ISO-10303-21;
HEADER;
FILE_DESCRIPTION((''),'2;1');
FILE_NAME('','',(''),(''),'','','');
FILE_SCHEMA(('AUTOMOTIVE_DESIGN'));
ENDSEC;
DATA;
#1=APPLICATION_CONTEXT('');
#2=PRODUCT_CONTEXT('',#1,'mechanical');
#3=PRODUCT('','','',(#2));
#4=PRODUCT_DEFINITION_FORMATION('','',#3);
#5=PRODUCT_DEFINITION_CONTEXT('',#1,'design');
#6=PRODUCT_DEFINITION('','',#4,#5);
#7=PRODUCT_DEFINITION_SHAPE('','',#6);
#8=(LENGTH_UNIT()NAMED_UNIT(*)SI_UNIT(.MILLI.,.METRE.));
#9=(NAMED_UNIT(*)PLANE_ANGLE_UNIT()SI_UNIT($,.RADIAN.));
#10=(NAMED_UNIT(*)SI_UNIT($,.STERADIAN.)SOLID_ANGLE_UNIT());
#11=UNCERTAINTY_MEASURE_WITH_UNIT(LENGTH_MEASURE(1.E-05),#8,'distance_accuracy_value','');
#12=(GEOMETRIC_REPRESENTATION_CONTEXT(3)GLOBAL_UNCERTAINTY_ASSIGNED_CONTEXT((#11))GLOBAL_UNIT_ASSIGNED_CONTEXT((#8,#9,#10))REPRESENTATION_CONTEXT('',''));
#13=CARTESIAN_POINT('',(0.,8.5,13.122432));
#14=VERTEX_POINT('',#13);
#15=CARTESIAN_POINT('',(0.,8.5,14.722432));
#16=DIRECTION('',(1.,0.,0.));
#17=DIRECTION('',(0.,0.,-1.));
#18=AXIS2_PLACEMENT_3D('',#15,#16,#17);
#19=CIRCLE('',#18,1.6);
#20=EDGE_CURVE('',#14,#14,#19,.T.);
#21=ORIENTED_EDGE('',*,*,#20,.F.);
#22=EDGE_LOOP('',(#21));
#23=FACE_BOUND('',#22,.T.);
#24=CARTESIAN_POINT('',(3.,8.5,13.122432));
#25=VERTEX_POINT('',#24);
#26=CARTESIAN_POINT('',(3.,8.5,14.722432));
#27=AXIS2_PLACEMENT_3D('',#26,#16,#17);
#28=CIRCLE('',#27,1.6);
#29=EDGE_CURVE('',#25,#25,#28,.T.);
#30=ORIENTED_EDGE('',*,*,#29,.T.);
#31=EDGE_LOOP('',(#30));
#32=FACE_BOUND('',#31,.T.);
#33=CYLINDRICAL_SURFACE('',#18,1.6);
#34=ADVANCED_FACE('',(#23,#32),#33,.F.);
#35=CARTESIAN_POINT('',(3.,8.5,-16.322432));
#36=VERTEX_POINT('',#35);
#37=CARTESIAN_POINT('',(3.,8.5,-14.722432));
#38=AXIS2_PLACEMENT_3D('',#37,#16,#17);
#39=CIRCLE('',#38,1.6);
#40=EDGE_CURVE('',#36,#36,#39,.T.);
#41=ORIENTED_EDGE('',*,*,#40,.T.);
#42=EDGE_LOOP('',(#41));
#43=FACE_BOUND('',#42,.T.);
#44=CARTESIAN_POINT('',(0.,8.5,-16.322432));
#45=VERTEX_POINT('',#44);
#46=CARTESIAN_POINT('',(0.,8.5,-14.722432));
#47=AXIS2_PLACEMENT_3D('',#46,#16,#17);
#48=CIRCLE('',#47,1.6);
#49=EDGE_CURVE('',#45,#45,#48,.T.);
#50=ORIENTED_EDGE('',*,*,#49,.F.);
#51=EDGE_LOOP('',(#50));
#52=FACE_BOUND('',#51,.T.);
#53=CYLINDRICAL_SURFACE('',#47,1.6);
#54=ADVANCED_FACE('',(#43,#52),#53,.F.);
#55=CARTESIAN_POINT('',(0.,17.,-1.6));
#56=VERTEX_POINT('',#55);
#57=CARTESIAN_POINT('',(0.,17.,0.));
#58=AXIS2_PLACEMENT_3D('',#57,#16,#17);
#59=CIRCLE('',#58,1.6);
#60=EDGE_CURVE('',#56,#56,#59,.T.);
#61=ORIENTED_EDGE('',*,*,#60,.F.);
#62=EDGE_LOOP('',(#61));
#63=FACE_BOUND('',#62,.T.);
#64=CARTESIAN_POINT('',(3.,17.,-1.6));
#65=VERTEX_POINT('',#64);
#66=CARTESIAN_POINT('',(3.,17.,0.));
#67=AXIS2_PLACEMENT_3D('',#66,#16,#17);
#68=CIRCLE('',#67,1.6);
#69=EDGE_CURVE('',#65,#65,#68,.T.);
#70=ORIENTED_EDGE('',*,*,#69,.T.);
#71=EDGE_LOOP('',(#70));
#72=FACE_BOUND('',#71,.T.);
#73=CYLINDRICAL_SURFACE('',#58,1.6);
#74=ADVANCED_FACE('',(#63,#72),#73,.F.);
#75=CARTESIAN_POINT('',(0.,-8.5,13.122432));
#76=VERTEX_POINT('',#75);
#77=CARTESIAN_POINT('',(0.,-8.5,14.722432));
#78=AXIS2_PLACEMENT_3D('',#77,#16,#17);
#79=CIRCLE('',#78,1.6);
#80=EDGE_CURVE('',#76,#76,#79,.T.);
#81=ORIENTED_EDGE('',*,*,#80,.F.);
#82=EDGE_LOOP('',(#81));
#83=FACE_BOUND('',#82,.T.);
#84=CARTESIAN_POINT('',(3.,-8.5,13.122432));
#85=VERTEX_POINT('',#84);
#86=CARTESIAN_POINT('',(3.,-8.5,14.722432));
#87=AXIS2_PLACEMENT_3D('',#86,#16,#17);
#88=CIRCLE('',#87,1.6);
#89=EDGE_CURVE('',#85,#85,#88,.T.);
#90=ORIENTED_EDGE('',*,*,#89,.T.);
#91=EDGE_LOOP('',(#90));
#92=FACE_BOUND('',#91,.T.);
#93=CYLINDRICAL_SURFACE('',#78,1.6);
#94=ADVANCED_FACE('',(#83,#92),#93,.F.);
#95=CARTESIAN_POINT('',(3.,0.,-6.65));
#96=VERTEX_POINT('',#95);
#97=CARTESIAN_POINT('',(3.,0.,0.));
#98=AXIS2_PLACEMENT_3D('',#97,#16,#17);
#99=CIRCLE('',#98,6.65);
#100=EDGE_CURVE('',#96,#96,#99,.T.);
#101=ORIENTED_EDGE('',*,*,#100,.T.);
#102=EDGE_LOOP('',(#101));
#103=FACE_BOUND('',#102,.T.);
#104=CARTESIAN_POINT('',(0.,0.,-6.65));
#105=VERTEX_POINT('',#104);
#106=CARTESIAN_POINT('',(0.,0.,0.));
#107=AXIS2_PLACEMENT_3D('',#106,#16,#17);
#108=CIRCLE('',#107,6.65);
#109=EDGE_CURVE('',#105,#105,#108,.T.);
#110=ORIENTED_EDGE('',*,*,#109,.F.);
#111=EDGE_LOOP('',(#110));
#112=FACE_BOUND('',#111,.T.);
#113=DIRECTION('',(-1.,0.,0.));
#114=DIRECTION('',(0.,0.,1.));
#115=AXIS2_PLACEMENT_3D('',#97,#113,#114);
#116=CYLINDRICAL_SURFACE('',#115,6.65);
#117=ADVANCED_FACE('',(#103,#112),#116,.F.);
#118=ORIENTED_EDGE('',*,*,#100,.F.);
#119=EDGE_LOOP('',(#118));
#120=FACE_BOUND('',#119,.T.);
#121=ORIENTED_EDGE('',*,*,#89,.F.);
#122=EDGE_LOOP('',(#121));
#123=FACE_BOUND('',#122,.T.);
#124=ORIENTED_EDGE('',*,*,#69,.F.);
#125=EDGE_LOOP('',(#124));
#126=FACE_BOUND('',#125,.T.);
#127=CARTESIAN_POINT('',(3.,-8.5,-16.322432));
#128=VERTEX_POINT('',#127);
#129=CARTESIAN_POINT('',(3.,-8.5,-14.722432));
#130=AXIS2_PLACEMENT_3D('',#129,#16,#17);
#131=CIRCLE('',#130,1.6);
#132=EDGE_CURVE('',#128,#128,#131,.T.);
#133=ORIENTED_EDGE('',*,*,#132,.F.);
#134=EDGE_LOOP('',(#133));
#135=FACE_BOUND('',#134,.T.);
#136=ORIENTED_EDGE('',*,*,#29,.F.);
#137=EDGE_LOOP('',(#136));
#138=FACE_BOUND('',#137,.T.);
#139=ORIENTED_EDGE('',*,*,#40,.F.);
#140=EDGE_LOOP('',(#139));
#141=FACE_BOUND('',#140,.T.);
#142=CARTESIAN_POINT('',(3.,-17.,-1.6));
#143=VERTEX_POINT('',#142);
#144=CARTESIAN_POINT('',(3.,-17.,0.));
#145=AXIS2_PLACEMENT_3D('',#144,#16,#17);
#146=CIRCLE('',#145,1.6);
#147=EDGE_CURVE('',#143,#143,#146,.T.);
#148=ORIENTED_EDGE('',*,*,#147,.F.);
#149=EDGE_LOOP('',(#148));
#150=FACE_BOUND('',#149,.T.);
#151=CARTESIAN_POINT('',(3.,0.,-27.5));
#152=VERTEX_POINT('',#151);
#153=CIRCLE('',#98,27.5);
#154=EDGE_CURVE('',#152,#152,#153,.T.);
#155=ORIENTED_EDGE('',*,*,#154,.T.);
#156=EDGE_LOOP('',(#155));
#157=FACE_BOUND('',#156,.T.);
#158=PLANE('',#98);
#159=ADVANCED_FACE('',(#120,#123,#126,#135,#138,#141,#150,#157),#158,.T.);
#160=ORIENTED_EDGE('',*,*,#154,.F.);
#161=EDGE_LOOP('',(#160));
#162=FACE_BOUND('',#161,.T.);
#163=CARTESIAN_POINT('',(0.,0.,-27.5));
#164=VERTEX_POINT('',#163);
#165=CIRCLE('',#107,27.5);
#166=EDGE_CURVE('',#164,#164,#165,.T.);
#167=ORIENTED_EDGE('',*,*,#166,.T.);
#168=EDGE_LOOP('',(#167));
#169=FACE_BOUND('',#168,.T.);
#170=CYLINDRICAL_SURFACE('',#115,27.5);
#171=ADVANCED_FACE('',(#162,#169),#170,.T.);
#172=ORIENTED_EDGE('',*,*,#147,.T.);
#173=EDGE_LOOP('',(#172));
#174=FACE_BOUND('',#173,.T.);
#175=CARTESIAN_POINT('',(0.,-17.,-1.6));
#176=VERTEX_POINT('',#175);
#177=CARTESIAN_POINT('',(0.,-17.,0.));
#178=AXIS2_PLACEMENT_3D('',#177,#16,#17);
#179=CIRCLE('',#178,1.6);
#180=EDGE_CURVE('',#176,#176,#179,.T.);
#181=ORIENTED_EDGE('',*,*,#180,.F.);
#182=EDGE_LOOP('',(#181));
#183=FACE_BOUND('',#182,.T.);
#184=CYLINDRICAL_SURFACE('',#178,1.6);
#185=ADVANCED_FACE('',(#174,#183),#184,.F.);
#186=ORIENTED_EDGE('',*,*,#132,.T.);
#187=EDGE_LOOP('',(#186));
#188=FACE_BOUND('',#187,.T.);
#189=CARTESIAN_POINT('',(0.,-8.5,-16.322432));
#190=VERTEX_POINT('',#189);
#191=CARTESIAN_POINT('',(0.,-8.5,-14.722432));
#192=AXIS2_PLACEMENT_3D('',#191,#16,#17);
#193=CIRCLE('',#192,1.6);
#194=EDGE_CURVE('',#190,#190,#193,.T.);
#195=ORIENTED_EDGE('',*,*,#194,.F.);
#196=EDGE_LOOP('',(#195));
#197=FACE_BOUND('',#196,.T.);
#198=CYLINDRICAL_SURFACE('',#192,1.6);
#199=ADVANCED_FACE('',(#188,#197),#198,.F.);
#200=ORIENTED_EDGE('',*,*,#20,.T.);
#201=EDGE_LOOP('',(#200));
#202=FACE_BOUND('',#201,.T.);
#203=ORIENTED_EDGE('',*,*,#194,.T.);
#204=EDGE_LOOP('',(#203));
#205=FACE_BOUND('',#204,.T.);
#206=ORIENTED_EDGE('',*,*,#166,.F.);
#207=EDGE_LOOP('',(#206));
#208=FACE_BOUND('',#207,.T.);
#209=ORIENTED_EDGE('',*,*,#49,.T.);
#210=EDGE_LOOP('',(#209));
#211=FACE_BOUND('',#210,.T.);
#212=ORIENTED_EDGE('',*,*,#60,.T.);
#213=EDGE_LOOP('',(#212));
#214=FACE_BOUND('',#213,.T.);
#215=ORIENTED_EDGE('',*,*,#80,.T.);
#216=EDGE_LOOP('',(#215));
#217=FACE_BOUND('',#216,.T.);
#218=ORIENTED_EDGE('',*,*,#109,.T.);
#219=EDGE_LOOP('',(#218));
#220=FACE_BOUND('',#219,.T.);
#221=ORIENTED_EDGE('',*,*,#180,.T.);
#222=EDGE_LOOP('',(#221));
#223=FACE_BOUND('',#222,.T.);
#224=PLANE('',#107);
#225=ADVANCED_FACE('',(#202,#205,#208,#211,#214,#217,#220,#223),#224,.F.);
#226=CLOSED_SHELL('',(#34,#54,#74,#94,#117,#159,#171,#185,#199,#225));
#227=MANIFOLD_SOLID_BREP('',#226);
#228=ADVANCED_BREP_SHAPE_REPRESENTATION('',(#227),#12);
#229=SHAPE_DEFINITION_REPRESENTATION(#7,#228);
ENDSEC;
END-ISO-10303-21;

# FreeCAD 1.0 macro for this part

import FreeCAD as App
import Part
import Sketcher
from FreeCAD import Vector
Q = App.Units.Quantity

doc = App.newDocument("Part")
body = doc.addObject("PartDesign::Body", "Body")

# Sketch on YZ plane
sketch1 = body.newObject("Sketcher::SketchObject", "Sketch")
sketch1.AttachmentSupport = (doc.getObject("YZ_Plane"), [""])
sketch1.MapMode = "FlatFace"
sketch1.addGeometry(Part.Circle(Vector(0, 0, 0), Vector(0, 0, 1), 28), False)
sketch1.addGeometry(Part.Circle(Vector(0, 0, 0), Vector(0, 0, 1), 7), False)
sketch1.addConstraint(Sketcher.Constraint("Coincident", 0, 3, -1, 1))
sketch1.addConstraint(Sketcher.Constraint("Coincident", 1, 3, -1, 1))
sketch1.addConstraint(Sketcher.Constraint("Diameter", 0, Q("55 mm")))
sketch1.addConstraint(Sketcher.Constraint("Diameter", 1, Q("13.3 mm")))
pad1 = body.newObject("PartDesign::Pad", "Pad")
pad1.Profile = sketch1
pad1.Length = 3

# Sketch on YZ plane
sketch2 = body.newObject("Sketcher::SketchObject", "Sketch001")
sketch2.AttachmentSupport = (doc.getObject("YZ_Plane"), [""])
sketch2.MapMode = "FlatFace"
sketch2.AttachmentOffset = App.Placement(Vector(0, 0, 3), App.Rotation())
sketch2.addGeometry(Part.Circle(Vector(17, 0, 0), Vector(0, 0, 1), 1.6), False)
sketch2.addGeometry(Part.Circle(Vector(8.5, -14.7, 0), Vector(0, 0, 1), 1.6), False)
sketch2.addGeometry(Part.Circle(Vector(-8.5, -14.7, 0), Vector(0, 0, 1), 1.6), False)
sketch2.addGeometry(Part.Circle(Vector(-17, 0, 0), Vector(0, 0, 1), 1.6), False)
sketch2.addGeometry(Part.Circle(Vector(-8.5, 14.7, 0), Vector(0, 0, 1), 1.6), False)
sketch2.addGeometry(Part.Circle(Vector(8.5, 14.7, 0), Vector(0, 0, 1), 1.6), False)
sketch2.addConstraint(Sketcher.Constraint("Equal", 0, 1))
sketch2.addConstraint(Sketcher.Constraint("Equal", 1, 2))
sketch2.addConstraint(Sketcher.Constraint("Equal", 2, 3))
sketch2.addConstraint(Sketcher.Constraint("Equal", 3, 4))
sketch2.addConstraint(Sketcher.Constraint("Equal", 4, 5))
sketch2.addConstraint(Sketcher.Constraint("Symmetric", 0, 3, 3, 3, -1, 1))
sketch2.addConstraint(Sketcher.Constraint("Symmetric", 1, 3, 4, 3, -1, 1))
sketch2.addConstraint(Sketcher.Constraint("Symmetric", 2, 3, 5, 3, -1, 1))
sketch2.addConstraint(Sketcher.Constraint("Symmetric", 1, 3, 2, 3, -2))
sketch2.addConstraint(Sketcher.Constraint("PointOnObject", 0, 3, -1))
sketch2.addConstraint(Sketcher.Constraint("Diameter", 0, Q("3.2 mm")))
sketch2.addConstraint(Sketcher.Constraint("DistanceX", -1, 1, 0, 3, Q("17 mm")))
sketch2.addConstraint(Sketcher.Constraint("DistanceX", 2, 3, 1, 3, Q("17 mm")))
sketch2.addConstraint(Sketcher.Constraint("DistanceY", 1, 3, -1, 1, Q("14.722432 mm")))
pocket1 = body.newObject("PartDesign::Pocket", "Pocket")
pocket1.Profile = sketch2
pocket1.Type = "ThroughAll"

doc.recompute()
